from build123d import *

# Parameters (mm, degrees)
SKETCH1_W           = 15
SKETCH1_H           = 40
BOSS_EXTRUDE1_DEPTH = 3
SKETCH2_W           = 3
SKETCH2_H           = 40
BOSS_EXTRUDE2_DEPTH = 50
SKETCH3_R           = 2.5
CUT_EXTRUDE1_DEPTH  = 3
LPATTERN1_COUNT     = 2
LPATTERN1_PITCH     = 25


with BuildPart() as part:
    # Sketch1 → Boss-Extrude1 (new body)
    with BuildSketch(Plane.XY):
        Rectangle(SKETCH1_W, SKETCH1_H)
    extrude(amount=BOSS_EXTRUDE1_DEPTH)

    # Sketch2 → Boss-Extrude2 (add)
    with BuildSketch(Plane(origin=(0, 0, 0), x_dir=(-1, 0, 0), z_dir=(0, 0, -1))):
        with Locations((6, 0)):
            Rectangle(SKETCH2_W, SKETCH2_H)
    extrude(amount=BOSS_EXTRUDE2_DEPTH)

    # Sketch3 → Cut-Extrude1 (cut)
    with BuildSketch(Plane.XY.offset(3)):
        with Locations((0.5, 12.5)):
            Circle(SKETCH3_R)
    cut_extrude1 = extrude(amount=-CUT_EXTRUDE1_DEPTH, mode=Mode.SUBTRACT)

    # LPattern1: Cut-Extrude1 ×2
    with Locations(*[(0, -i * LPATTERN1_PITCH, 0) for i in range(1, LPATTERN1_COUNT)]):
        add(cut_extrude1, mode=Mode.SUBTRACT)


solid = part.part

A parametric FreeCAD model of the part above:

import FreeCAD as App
import Part
import Sketcher
from FreeCAD import Vector
Q = App.Units.Quantity


def add_polygon(sketch, points):
    """Adds a closed chain of lines whose ends are joined by coincident constraints."""
    first, n = sketch.GeometryCount, len(points)
    for a, b in zip(points, points[1:] + points[:1]):
        sketch.addGeometry(Part.LineSegment(App.Vector(*a, 0), App.Vector(*b, 0)), False)
    for i in range(n):
        sketch.addConstraint(Sketcher.Constraint("Coincident", first + i, 2, first + (i + 1) % n, 1))

doc = App.newDocument("Part")
body = doc.addObject("PartDesign::Body", "Body")

sketch1 = body.newObject("Sketcher::SketchObject", "Sketch")
sketch1.AttachmentSupport = (doc.getObject("XY_Plane"), [""])
sketch1.MapMode = "FlatFace"
add_polygon(sketch1, [(-8, 20), (-8, -20), (8, -20), (8, 20)])
sketch1.addConstraint([
    Sketcher.Constraint("Vertical", 0),
    Sketcher.Constraint("Horizontal", 1),
    Sketcher.Constraint("Vertical", 2),
    Sketcher.Constraint("Horizontal", 3),
    Sketcher.Constraint("Symmetric", 0, 2, 2, 2, -1, 1),
    Sketcher.Constraint("DistanceX", 1, 1, 1, 2, Q("15 mm")),
    Sketcher.Constraint("DistanceY", 0, 2, 0, 1, Q("40 mm")),
])
pad1 = body.newObject("PartDesign::Pad", "Pad")
pad1.Profile = sketch1
pad1.Length = 3

sketch2 = body.newObject("Sketcher::SketchObject", "Sketch001")
sketch2.AttachmentSupport = (doc.getObject("XY_Plane"), [""])
sketch2.MapMode = "FlatFace"
add_polygon(sketch2, [(-4.5, 20), (-4.5, -20), (-7.5, -20), (-7.5, 20)])
sketch2.addConstraint([
    Sketcher.Constraint("Vertical", 0),
    Sketcher.Constraint("Horizontal", 1),
    Sketcher.Constraint("Vertical", 2),
    Sketcher.Constraint("Horizontal", 3),
    Sketcher.Constraint("DistanceX", 1, 2, 1, 1, Q("3 mm")),
    Sketcher.Constraint("DistanceY", 0, 2, 0, 1, Q("40 mm")),
    Sketcher.Constraint("DistanceY", 0, 2, -1, 1, Q("20 mm")),
    Sketcher.Constraint("DistanceX", 0, 2, -1, 1, Q("4.5 mm")),
])
pad2 = body.newObject("PartDesign::Pad", "Pad001")
pad2.Profile = sketch2
pad2.Length = 50
pad2.Reversed = True

sketch3 = body.newObject("Sketcher::SketchObject", "Sketch002")
sketch3.AttachmentSupport = (doc.getObject("XY_Plane"), [""])
sketch3.MapMode = "FlatFace"
sketch3.AttachmentOffset = App.Placement(Vector(0, 0, 3), App.Rotation())
sketch3.addGeometry(Part.Circle(Vector(0.5, 12.5, 0), Vector(0, 0, 1), 2.5), False)
sketch3.addConstraint([
    Sketcher.Constraint("Diameter", 0, Q("5 mm")),
    Sketcher.Constraint("DistanceX", -1, 1, 0, 3, Q("0.5 mm")),
    Sketcher.Constraint("DistanceY", -1, 1, 0, 3, Q("12.5 mm")),
])
pocket1 = body.newObject("PartDesign::Pocket", "Pocket")
pocket1.Profile = sketch3
pocket1.Length = 3
doc.recompute()

linearpattern = body.newObject("PartDesign::LinearPattern", "LinearPattern")
linearpattern.Originals = [pocket1]
linearpattern.Direction = (doc.getObject("Y_Axis"), [""])
linearpattern.Mode = "offset"
linearpattern.Offset = 25
linearpattern.Occurrences = 2
linearpattern.Reversed = True
body.Tip = linearpattern

doc.recompute()
